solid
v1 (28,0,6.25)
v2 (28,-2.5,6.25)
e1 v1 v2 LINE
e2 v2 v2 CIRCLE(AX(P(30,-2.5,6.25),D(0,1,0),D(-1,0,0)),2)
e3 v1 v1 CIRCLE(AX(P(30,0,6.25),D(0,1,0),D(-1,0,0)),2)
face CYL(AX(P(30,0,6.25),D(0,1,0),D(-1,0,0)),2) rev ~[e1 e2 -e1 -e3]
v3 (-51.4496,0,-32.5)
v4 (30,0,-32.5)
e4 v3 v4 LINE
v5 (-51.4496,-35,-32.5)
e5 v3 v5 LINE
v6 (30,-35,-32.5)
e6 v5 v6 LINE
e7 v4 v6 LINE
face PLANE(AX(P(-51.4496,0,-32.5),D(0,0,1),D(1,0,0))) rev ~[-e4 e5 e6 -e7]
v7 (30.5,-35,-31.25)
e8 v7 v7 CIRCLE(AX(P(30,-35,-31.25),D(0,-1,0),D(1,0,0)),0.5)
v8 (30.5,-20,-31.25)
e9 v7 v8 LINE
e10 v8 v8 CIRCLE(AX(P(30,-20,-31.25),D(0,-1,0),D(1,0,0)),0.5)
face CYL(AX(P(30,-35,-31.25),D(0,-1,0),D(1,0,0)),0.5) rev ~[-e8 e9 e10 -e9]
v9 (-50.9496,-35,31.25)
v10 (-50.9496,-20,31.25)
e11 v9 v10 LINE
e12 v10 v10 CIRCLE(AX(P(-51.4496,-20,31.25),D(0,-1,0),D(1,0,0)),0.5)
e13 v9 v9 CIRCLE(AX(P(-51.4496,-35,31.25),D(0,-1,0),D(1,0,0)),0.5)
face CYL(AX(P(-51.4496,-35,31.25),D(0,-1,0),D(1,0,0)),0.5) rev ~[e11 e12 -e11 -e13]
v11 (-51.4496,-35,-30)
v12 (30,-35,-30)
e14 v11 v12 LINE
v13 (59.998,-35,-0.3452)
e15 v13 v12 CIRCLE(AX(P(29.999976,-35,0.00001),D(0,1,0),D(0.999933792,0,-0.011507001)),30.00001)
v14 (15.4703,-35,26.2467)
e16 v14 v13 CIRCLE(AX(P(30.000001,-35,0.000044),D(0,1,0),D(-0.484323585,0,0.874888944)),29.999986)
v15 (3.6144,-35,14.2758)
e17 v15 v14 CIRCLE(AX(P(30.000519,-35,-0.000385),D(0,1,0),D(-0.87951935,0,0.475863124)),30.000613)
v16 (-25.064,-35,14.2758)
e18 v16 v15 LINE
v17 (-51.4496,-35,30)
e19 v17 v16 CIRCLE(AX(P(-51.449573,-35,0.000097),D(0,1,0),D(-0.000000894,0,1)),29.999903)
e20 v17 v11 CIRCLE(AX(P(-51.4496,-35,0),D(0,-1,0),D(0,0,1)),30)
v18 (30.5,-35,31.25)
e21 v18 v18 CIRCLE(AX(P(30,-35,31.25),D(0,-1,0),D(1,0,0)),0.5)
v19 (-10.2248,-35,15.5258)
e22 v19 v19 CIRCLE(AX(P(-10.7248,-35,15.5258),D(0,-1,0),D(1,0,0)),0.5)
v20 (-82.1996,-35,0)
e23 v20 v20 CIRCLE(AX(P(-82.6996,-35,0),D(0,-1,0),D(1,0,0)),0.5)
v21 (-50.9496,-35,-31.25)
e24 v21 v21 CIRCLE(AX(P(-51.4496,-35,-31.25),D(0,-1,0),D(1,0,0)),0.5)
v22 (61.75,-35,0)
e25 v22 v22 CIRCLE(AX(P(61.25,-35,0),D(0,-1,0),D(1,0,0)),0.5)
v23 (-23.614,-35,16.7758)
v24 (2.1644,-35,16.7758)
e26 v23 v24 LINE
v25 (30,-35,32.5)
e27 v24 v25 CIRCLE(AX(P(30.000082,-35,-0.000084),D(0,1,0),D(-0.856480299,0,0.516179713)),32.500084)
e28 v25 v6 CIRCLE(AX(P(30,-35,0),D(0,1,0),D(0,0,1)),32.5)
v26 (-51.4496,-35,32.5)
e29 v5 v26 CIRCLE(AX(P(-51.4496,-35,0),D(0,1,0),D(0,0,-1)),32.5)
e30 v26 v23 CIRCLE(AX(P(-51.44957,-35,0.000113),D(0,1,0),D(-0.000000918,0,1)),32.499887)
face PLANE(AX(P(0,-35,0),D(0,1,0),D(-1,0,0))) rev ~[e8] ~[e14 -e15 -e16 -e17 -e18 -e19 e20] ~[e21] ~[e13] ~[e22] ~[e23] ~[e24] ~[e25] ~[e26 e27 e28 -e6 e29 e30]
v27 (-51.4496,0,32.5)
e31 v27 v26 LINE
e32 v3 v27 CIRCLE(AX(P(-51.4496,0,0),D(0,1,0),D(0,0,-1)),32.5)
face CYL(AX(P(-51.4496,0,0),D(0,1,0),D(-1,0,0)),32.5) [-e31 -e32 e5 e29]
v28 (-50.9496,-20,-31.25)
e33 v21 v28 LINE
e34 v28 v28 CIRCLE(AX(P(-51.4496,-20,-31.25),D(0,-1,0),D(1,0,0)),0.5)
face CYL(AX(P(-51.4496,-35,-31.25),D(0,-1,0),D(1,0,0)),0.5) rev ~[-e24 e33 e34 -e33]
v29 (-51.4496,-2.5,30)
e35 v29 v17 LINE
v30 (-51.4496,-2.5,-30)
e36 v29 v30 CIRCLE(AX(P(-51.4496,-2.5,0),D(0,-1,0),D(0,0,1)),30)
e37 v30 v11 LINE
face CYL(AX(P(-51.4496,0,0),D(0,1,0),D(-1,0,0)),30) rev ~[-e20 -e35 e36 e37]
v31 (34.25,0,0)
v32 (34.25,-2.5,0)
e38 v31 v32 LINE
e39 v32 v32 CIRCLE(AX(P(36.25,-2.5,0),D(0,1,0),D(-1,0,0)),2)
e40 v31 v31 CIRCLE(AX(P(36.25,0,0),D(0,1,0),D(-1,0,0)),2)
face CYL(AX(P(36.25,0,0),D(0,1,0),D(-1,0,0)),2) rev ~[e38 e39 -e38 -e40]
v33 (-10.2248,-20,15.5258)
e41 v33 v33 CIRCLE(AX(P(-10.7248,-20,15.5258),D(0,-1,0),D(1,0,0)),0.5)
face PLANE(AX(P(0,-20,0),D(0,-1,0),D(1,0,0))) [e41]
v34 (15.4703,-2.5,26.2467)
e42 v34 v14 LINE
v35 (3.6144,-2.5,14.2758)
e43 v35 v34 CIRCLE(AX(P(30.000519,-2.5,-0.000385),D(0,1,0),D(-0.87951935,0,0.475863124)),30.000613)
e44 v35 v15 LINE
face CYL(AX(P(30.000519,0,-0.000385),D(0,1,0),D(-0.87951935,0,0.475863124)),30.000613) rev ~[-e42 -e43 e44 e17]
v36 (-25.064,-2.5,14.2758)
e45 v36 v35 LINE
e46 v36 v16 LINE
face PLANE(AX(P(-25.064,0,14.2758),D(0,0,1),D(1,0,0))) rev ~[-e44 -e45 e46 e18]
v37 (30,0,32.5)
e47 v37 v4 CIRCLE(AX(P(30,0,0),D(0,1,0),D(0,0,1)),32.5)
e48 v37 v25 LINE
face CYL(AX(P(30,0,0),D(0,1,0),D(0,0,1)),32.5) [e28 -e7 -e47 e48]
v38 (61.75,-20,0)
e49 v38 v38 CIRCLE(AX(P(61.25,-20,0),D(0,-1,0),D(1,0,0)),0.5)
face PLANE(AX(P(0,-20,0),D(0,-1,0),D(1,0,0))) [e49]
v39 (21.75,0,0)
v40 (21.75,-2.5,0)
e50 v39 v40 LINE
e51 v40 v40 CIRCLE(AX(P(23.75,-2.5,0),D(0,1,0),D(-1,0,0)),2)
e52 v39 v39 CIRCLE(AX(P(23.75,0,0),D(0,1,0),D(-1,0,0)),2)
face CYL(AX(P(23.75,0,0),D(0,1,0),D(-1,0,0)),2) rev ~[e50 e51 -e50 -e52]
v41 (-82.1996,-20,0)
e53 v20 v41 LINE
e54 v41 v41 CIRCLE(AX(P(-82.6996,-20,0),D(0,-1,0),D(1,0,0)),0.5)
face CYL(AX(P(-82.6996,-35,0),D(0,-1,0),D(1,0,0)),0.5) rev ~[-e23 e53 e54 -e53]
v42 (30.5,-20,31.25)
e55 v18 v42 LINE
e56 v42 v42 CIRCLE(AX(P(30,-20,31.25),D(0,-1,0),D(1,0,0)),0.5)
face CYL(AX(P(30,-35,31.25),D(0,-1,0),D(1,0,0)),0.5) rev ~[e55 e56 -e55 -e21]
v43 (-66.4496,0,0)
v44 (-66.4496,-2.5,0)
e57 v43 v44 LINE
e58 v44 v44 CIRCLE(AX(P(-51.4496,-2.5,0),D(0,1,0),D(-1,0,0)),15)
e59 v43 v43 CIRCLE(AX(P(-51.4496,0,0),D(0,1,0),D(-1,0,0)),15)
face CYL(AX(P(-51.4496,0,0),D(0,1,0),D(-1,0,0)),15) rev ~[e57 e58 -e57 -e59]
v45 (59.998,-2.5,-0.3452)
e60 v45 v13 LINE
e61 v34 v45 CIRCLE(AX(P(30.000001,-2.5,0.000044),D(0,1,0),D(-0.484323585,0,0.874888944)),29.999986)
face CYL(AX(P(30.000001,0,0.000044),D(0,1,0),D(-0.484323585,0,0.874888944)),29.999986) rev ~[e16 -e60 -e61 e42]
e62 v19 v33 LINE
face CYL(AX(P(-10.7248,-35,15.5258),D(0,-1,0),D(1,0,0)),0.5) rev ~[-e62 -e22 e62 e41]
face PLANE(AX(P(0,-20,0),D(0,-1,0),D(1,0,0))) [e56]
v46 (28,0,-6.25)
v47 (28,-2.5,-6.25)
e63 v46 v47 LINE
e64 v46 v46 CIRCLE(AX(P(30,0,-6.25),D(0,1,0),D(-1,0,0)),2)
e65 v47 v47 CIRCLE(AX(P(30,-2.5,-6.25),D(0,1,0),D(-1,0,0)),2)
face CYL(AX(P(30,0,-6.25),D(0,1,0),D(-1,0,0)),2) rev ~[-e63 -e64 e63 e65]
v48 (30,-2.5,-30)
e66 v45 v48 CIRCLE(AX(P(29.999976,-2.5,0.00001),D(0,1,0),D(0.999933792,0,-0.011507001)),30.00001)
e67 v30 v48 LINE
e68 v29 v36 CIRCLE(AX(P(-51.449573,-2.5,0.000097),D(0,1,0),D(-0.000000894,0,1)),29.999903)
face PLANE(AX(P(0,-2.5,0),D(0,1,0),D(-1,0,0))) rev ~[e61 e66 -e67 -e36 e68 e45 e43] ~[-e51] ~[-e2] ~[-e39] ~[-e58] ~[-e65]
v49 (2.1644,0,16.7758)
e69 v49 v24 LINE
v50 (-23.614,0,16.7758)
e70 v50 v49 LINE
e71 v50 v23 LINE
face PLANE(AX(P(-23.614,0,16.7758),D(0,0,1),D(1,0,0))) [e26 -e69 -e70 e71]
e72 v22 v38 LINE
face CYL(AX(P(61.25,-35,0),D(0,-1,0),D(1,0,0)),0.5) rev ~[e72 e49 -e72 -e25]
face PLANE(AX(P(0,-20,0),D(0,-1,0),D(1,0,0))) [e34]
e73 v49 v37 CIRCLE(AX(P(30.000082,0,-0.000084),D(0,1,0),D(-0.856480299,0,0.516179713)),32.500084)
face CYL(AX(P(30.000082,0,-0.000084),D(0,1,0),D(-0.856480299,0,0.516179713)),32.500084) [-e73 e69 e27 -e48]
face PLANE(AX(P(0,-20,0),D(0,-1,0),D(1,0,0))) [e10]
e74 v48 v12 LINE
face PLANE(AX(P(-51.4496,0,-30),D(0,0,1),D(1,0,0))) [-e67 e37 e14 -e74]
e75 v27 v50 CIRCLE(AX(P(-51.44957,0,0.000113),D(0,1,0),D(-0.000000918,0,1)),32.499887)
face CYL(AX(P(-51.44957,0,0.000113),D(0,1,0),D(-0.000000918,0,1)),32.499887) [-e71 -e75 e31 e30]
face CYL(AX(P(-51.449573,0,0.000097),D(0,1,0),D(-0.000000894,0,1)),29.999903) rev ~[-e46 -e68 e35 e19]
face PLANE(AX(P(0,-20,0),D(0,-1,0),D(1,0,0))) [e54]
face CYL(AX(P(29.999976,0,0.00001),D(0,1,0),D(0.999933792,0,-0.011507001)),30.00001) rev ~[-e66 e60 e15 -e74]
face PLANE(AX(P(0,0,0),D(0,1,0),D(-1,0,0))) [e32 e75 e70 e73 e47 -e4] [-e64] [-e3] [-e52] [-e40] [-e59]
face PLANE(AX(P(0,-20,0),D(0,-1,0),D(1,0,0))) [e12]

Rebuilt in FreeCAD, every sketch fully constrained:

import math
import FreeCAD as App
import Part
import Sketcher
from FreeCAD import Vector

doc = App.newDocument("Part")
body = doc.addObject("PartDesign::Body", "Body")

sketch1 = body.newObject("Sketcher::SketchObject", "Sketch")
sketch1.AttachmentSupport = (doc.getObject("XZ_Plane"), [""])
sketch1.MapMode = "FlatFace"
sketch1.addGeometry([
    Part.ArcOfCircle(Part.Circle(Vector(30, 0, 0), Vector(0, 0, 1), 30.000024), math.radians(118.968123), math.radians(151.584612)),
    Part.ArcOfCircle(Part.Circle(Vector(30, 0, 0), Vector(0, 0, 1), 29.999986), math.radians(-0.659298), math.radians(118.968123)),
    Part.ArcOfCircle(Part.Circle(Vector(30, 0, 0), Vector(0, 0, 1), 30), math.radians(-90), math.radians(-0.659298)),
    Part.LineSegment(Vector(30, -30, 0), Vector(-51.4496, -30, 0)),
    Part.ArcOfCircle(Part.Circle(Vector(-51.4496, 0, 0), Vector(0, 0, 1), 30), math.radians(90), math.radians(270)),
    Part.ArcOfCircle(Part.Circle(Vector(-51.4496, 0, 0), Vector(0, 0, 1), 30), math.radians(28.415388), math.radians(90)),
    Part.LineSegment(Vector(-25.064, 14.2758, 0), Vector(3.6144, 14.2758, 0)),
    Part.Circle(Vector(30, -6.25, 0), Vector(0, 0, 1), 2),
    Part.Circle(Vector(36.25, 0, 0), Vector(0, 0, 1), 2),
    Part.Circle(Vector(23.75, 0, 0), Vector(0, 0, 1), 2),
    Part.Circle(Vector(-51.4496, 0, 0), Vector(0, 0, 1), 15),
    Part.Circle(Vector(30, 6.25, 0), Vector(0, 0, 1), 2),
], False)
sketch1.addConstraint([
    Sketcher.Constraint("Tangent", 0, 1, 1, 2),
    Sketcher.Constraint("Tangent", 1, 1, 2, 2),
    Sketcher.Constraint("Tangent", 2, 1, 3, 1),
    Sketcher.Constraint("Tangent", 3, 2, 4, 2),
    Sketcher.Constraint("Tangent", 4, 1, 5, 2),
    Sketcher.Constraint("Coincident", 5, 1, 6, 1),
    Sketcher.Constraint("Coincident", 6, 2, 0, 2),
    Sketcher.Constraint("Horizontal", 3),
    Sketcher.Constraint("Horizontal", 6),
    Sketcher.Constraint("Coincident", 2, 3, 0, 3),
    Sketcher.Constraint("Coincident", 10, 3, 4, 3),
    Sketcher.Constraint("Equal", 2, 4),
    Sketcher.Constraint("Equal", 4, 5),
    Sketcher.Constraint("Equal", 7, 8),
    Sketcher.Constraint("Equal", 8, 9),
    Sketcher.Constraint("Equal", 9, 11),
    Sketcher.Constraint("Symmetric", 7, 3, 11, 3, -1),
    Sketcher.Constraint("Symmetric", 3, 2, 4, 1, -1),
    Sketcher.Constraint("PointOnObject", 8, 3, -1),
    Sketcher.Constraint("PointOnObject", 9, 3, -1),
    Sketcher.Constraint("Vertical", 2, 3, 7, 3),
    Sketcher.Constraint("Diameter", 7, 4.0),
    Sketcher.Constraint("Diameter", 10, 30.0),
    Sketcher.Constraint("Radius", 0, 30.0),
    Sketcher.Constraint("DistanceX", -1, 1, 0, 3, 30.0),
    Sketcher.Constraint("DistanceX", 9, 3, 8, 3, 12.5),
    Sketcher.Constraint("DistanceY", 7, 3, -1, 1, 6.25),
    Sketcher.Constraint("DistanceX", 0, 3, 8, 3, 6.25),
    Sketcher.Constraint("DistanceX", 4, 1, 0, 1, 66.92),
    Sketcher.Constraint("DistanceX", 3, 2, 3, 1, 81.4496),
    Sketcher.Constraint("DistanceX", 6, 1, 6, 2, 28.6784),
    Sketcher.Constraint("DistanceX", -1, 1, 1, 1, 59.998),
])
pad1 = body.newObject("PartDesign::Pad", "Pad")
pad1.Profile = sketch1
pad1.Length = 2.5

sketch2 = body.newObject("Sketcher::SketchObject", "Sketch001")
sketch2.AttachmentSupport = (doc.getObject("XZ_Plane"), [""])
sketch2.MapMode = "FlatFace"
sketch2.addGeometry([
    Part.ArcOfCircle(Part.Circle(Vector(30, 0, 0), Vector(0, 0, 1), 32.5), math.radians(90), math.radians(148.923711)),
    Part.ArcOfCircle(Part.Circle(Vector(30, 0, 0), Vector(0, 0, 1), 32.5), math.radians(-90), math.radians(90)),
    Part.LineSegment(Vector(30, -32.5, 0), Vector(-51.4496, -32.5, 0)),
    Part.ArcOfCircle(Part.Circle(Vector(-51.4496, 0, 0), Vector(0, 0, 1), 32.5), math.radians(90), math.radians(270)),
    Part.ArcOfCircle(Part.Circle(Vector(-51.4496, 0, 0), Vector(0, 0, 1), 32.5), math.radians(31.076289), math.radians(90)),
    Part.LineSegment(Vector(-23.614, 16.7758, 0), Vector(2.1644, 16.7758, 0)),
    Part.ArcOfCircle(Part.Circle(Vector(30, 0, 0), Vector(0, 0, 1), 29.999986), math.radians(-0.659298), math.radians(118.968123)),
    Part.ArcOfCircle(Part.Circle(Vector(30, 0, 0), Vector(0, 0, 1), 30.000024), math.radians(118.968123), math.radians(151.584612)),
    Part.LineSegment(Vector(3.6144, 14.2758, 0), Vector(-25.064, 14.2758, 0)),
    Part.ArcOfCircle(Part.Circle(Vector(-51.4496, 0, 0), Vector(0, 0, 1), 30), math.radians(28.415388), math.radians(90)),
    Part.ArcOfCircle(Part.Circle(Vector(-51.4496, 0, 0), Vector(0, 0, 1), 30), math.radians(90), math.radians(270)),
    Part.LineSegment(Vector(-51.4496, -30, 0), Vector(30, -30, 0)),
    Part.ArcOfCircle(Part.Circle(Vector(30, 0, 0), Vector(0, 0, 1), 30), math.radians(-90), math.radians(-0.659298)),
], False)
sketch2.addConstraint([
    Sketcher.Constraint("Tangent", 0, 1, 1, 2),
    Sketcher.Constraint("Tangent", 1, 1, 2, 1),
    Sketcher.Constraint("Tangent", 2, 2, 3, 2),
    Sketcher.Constraint("Tangent", 3, 1, 4, 2),
    Sketcher.Constraint("Coincident", 4, 1, 5, 1),
    Sketcher.Constraint("Coincident", 5, 2, 0, 2),
    Sketcher.Constraint("Tangent", 6, 2, 7, 1),
    Sketcher.Constraint("Coincident", 7, 2, 8, 1),
    Sketcher.Constraint("Coincident", 8, 2, 9, 1),
    Sketcher.Constraint("Tangent", 9, 2, 10, 1),
    Sketcher.Constraint("Tangent", 10, 2, 11, 1),
    Sketcher.Constraint("Tangent", 11, 2, 12, 1),
    Sketcher.Constraint("Tangent", 12, 2, 6, 1),
    Sketcher.Constraint("Horizontal", 2),
    Sketcher.Constraint("Horizontal", 5),
    Sketcher.Constraint("Horizontal", 8),
    Sketcher.Constraint("Horizontal", 11),
    Sketcher.Constraint("Coincident", 6, 3, 0, 3),
    Sketcher.Constraint("Coincident", 9, 3, 3, 3),
    Sketcher.Constraint("Equal", 0, 1),
    Sketcher.Constraint("Equal", 1, 3),
    Sketcher.Constraint("Equal", 3, 4),
    Sketcher.Constraint("Equal", 6, 7),
    Sketcher.Constraint("Equal", 7, 9),
    Sketcher.Constraint("Equal", 9, 10),
    Sketcher.Constraint("Symmetric", 0, 1, 1, 1, -1),
    Sketcher.Constraint("Vertical", 2, 2, 3, 1),
    Sketcher.Constraint("Vertical", 3, 1, 9, 2),
    Sketcher.Constraint("Radius", 6, 30.0),
    Sketcher.Constraint("Radius", 0, 32.5),
    Sketcher.Constraint("DistanceX", -1, 1, 0, 3, 30.0),
    Sketcher.Constraint("DistanceY", 7, 2, 5, 2, 2.5),
    Sketcher.Constraint("DistanceX", -1, 1, 5, 2, 2.1644),
    Sketcher.Constraint("DistanceX", 2, 2, 2, 1, 81.4496),
    Sketcher.Constraint("DistanceX", -1, 1, 12, 2, 59.998),
    Sketcher.Constraint("DistanceX", 5, 2, 6, 2, 13.306),
])
pad2 = body.newObject("PartDesign::Pad", "Pad001")
pad2.Profile = sketch2
pad2.Length = 35

sketch3 = body.newObject("Sketcher::SketchObject", "Sketch002")
sketch3.AttachmentSupport = (doc.getObject("XZ_Plane"), [""])
sketch3.MapMode = "FlatFace"
sketch3.AttachmentOffset = App.Placement(Vector(0, 0, 35), App.Rotation())
sketch3.addGeometry([
    Part.Circle(Vector(-10.7248, 15.5258, 0), Vector(0, 0, 1), 0.5),
    Part.Circle(Vector(30, 31.25, 0), Vector(0, 0, 1), 0.5),
    Part.Circle(Vector(61.25, 0, 0), Vector(0, 0, 1), 0.5),
    Part.Circle(Vector(30, -31.25, 0), Vector(0, 0, 1), 0.5),
    Part.Circle(Vector(-51.4496, -31.25, 0), Vector(0, 0, 1), 0.5),
    Part.Circle(Vector(-51.4496, 31.25, 0), Vector(0, 0, 1), 0.5),
    Part.Circle(Vector(-82.6996, 0, 0), Vector(0, 0, 1), 0.5),
], False)
sketch3.addConstraint([
    Sketcher.Constraint("Equal", 0, 1),
    Sketcher.Constraint("Equal", 1, 2),
    Sketcher.Constraint("Equal", 2, 3),
    Sketcher.Constraint("Equal", 3, 4),
    Sketcher.Constraint("Equal", 4, 5),
    Sketcher.Constraint("Equal", 5, 6),
    Sketcher.Constraint("Symmetric", 1, 3, 3, 3, -1),
    Sketcher.Constraint("Symmetric", 4, 3, 5, 3, -1),
    Sketcher.Constraint("PointOnObject", 2, 3, -1),
    Sketcher.Constraint("PointOnObject", 6, 3, -1),
    Sketcher.Constraint("Horizontal", 3, 3, 4, 3),
    Sketcher.Constraint("Diameter", 0, 1.0),
    Sketcher.Constraint("DistanceX", -1, 1, 1, 3, 30.0),
    Sketcher.Constraint("DistanceY", 3, 3, 1, 3, 62.5),
    Sketcher.Constraint("DistanceX", 4, 3, 3, 3, 81.4496),
    Sketcher.Constraint("DistanceX", -1, 1, 2, 3, 61.25),
    Sketcher.Constraint("DistanceX", 6, 3, 4, 3, 31.25),
    Sketcher.Constraint("DistanceX", 0, 3, -1, 1, 10.7248),
    Sketcher.Constraint("DistanceY", -1, 1, 0, 3, 15.5258),
])
pocket1 = body.newObject("PartDesign::Pocket", "Pocket")
pocket1.Profile = sketch3
pocket1.Length = 15

doc.recompute()
